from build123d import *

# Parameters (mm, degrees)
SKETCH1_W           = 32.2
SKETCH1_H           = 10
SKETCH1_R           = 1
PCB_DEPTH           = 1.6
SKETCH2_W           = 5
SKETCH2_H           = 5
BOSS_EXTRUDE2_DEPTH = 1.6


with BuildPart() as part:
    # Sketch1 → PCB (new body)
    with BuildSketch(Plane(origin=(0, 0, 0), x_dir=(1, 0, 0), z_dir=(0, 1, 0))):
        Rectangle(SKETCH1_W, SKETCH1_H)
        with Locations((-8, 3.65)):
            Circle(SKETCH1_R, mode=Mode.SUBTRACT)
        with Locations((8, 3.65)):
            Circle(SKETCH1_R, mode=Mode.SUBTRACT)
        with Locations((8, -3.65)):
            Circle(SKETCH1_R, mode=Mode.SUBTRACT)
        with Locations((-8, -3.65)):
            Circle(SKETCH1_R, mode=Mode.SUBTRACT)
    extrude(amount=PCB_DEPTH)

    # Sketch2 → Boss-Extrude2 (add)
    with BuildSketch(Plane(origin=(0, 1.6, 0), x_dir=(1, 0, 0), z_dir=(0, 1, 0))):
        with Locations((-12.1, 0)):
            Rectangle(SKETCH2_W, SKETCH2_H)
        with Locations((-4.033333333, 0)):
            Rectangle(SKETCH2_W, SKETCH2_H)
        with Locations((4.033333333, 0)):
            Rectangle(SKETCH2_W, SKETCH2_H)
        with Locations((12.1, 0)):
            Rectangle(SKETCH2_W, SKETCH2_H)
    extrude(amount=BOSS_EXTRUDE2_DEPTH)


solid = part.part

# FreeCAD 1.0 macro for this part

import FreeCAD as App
import Part
import Sketcher


def add_polygon(sketch, points):
    """Adds a closed chain of lines whose ends are joined by coincident constraints."""
    first, n = sketch.GeometryCount, len(points)
    for a, b in zip(points, points[1:] + points[:1]):
        sketch.addGeometry(Part.LineSegment(App.Vector(*a, 0), App.Vector(*b, 0)), False)
    for i in range(n):
        sketch.addConstraint(Sketcher.Constraint("Coincident", first + i, 2, first + (i + 1) % n, 1))

doc = App.newDocument("Part")
params = doc.addObject("Spreadsheet::Sheet", "Params")
for row, (alias, value) in enumerate([
    ("sketch1_diameter", "2 mm"),
    ("sketch1_height", "10 mm"),
    ("sketch1_width", "32.2 mm"),
    ("pad1_length", "1.6 mm"),
    ("sketch2_width", "5 mm"),
    ("pad2_length", "1.6 mm"),
], start=1):
    params.set(f"A{row}", alias)
    params.set(f"B{row}", "=" + value)
    params.setAlias(f"B{row}", alias)

body = doc.addObject("PartDesign::Body", "Body")

# Sketch on XZ plane
sketch1 = body.newObject("Sketcher::SketchObject", "Sketch")
sketch1.AttachmentSupport = (doc.getObject("XZ_Plane"), [""])
sketch1.MapMode = "FlatFace"
add_polygon(sketch1, [(-16.1, -5), (-16.1, 5), (16.1, 5), (16.1, -5)])  # lines 0-3
sketch1.addGeometry(Part.Circle(App.Vector(-8, 3.65, 0), App.Vector(0, 0, 1), 1), False)  # 4
sketch1.addGeometry(Part.Circle(App.Vector(8, 3.65, 0), App.Vector(0, 0, 1), 1), False)  # 5
sketch1.addGeometry(Part.Circle(App.Vector(-8, -3.65, 0), App.Vector(0, 0, 1), 1), False)  # 6
sketch1.addGeometry(Part.Circle(App.Vector(8, -3.65, 0), App.Vector(0, 0, 1), 1), False)  # 7
sketch1.addConstraint(Sketcher.Constraint("Vertical", 0))
sketch1.addConstraint(Sketcher.Constraint("Horizontal", 1))
sketch1.addConstraint(Sketcher.Constraint("Vertical", 2))
sketch1.addConstraint(Sketcher.Constraint("Horizontal", 3))
sketch1.addConstraint(Sketcher.Constraint("Equal", 4, 5))
sketch1.addConstraint(Sketcher.Constraint("Equal", 5, 6))
sketch1.addConstraint(Sketcher.Constraint("Equal", 6, 7))
sketch1.addConstraint(Sketcher.Constraint("Symmetric", 5, 3, 6, 3, -1, 1))
sketch1.addConstraint(Sketcher.Constraint("Symmetric", 4, 3, 7, 3, -1, 1))
sketch1.addConstraint(Sketcher.Constraint("Symmetric", 0, 2, 2, 2, -1, 1))
sketch1.addConstraint(Sketcher.Constraint("Symmetric", 4, 3, 5, 3, -2))
sketch1.addConstraint(Sketcher.Constraint("Diameter", 4, 2.0))
sketch1.addConstraint(Sketcher.Constraint("DistanceY", 0, 1, 0, 2, 10.0))
sketch1.addConstraint(Sketcher.Constraint("DistanceX", 1, 1, 1, 2, 32.2))
sketch1.addConstraint(Sketcher.Constraint("DistanceX", 4, 3, -1, 1, 8.0))
sketch1.addConstraint(Sketcher.Constraint("DistanceY", 6, 3, 4, 3, 7.3))
sketch1.setExpression("Constraints[15]", "Params.sketch1_diameter")
sketch1.setExpression("Constraints[16]", "Params.sketch1_height")
sketch1.setExpression("Constraints[17]", "Params.sketch1_width")
pad1 = body.newObject("PartDesign::Pad", "Pad")
pad1.Profile = sketch1
pad1.setExpression("Length", "Params.pad1_length")
pad1.Reversed = True

# Sketch on XZ plane
sketch2 = body.newObject("Sketcher::SketchObject", "Sketch001")
sketch2.AttachmentSupport = (doc.getObject("XZ_Plane"), [""])
sketch2.MapMode = "FlatFace"
sketch2.AttachmentOffset = App.Placement(App.Vector(0, 0, -1.6), App.Rotation())
add_polygon(sketch2, [(-14.6, -2.5), (-14.6, 2.5), (-9.6, 2.5), (-9.6, -2.5)])  # lines 0-3
add_polygon(sketch2, [(-6.533333, -2.5), (-6.533333, 2.5), (-1.533333, 2.5), (-1.533333, -2.5)])  # lines 4-7
add_polygon(sketch2, [(1.533333, -2.5), (1.533333, 2.5), (6.533333, 2.5), (6.533333, -2.5)])  # lines 8-11
add_polygon(sketch2, [(9.6, -2.5), (9.6, 2.5), (14.6, 2.5), (14.6, -2.5)])  # lines 12-15
sketch2.addConstraint(Sketcher.Constraint("Vertical", 0))
sketch2.addConstraint(Sketcher.Constraint("Horizontal", 1))
sketch2.addConstraint(Sketcher.Constraint("Vertical", 2))
sketch2.addConstraint(Sketcher.Constraint("Horizontal", 3))
sketch2.addConstraint(Sketcher.Constraint("Vertical", 4))
sketch2.addConstraint(Sketcher.Constraint("Horizontal", 5))
sketch2.addConstraint(Sketcher.Constraint("Vertical", 6))
sketch2.addConstraint(Sketcher.Constraint("Horizontal", 7))
sketch2.addConstraint(Sketcher.Constraint("Vertical", 8))
sketch2.addConstraint(Sketcher.Constraint("Horizontal", 9))
sketch2.addConstraint(Sketcher.Constraint("Vertical", 10))
sketch2.addConstraint(Sketcher.Constraint("Horizontal", 11))
sketch2.addConstraint(Sketcher.Constraint("Vertical", 12))
sketch2.addConstraint(Sketcher.Constraint("Horizontal", 13))
sketch2.addConstraint(Sketcher.Constraint("Vertical", 14))
sketch2.addConstraint(Sketcher.Constraint("Horizontal", 15))
sketch2.addConstraint(Sketcher.Constraint("Symmetric", 6, 2, 8, 2, -1, 1))
sketch2.addConstraint(Sketcher.Constraint("Symmetric", 4, 2, 10, 2, -1, 1))
sketch2.addConstraint(Sketcher.Constraint("Symmetric", 2, 2, 12, 2, -1, 1))
sketch2.addConstraint(Sketcher.Constraint("Symmetric", 0, 2, 14, 2, -1, 1))
sketch2.addConstraint(Sketcher.Constraint("Horizontal", 1, 2, 4, 2))
sketch2.addConstraint(Sketcher.Constraint("Horizontal", 3, 2, 6, 2))
sketch2.addConstraint(Sketcher.Constraint("Horizontal", 5, 2, 8, 2))
sketch2.addConstraint(Sketcher.Constraint("Equal", 3, 5))
sketch2.addConstraint(Sketcher.Constraint("Equal", 15, 0))
sketch2.addConstraint(Sketcher.Constraint("DistanceX", 1, 1, 1, 2, 5.0))
sketch2.addConstraint(Sketcher.Constraint("DistanceX", 0, 2, -1, 1, 14.6))
sketch2.addConstraint(Sketcher.Constraint("DistanceX", 4, 2, -1, 1, 6.533333))
sketch2.setExpression("Constraints[41]", "Params.sketch2_width")
pad2 = body.newObject("PartDesign::Pad", "Pad001")
pad2.Profile = sketch2
pad2.setExpression("Length", "Params.pad2_length")
pad2.Reversed = True

doc.recompute()
